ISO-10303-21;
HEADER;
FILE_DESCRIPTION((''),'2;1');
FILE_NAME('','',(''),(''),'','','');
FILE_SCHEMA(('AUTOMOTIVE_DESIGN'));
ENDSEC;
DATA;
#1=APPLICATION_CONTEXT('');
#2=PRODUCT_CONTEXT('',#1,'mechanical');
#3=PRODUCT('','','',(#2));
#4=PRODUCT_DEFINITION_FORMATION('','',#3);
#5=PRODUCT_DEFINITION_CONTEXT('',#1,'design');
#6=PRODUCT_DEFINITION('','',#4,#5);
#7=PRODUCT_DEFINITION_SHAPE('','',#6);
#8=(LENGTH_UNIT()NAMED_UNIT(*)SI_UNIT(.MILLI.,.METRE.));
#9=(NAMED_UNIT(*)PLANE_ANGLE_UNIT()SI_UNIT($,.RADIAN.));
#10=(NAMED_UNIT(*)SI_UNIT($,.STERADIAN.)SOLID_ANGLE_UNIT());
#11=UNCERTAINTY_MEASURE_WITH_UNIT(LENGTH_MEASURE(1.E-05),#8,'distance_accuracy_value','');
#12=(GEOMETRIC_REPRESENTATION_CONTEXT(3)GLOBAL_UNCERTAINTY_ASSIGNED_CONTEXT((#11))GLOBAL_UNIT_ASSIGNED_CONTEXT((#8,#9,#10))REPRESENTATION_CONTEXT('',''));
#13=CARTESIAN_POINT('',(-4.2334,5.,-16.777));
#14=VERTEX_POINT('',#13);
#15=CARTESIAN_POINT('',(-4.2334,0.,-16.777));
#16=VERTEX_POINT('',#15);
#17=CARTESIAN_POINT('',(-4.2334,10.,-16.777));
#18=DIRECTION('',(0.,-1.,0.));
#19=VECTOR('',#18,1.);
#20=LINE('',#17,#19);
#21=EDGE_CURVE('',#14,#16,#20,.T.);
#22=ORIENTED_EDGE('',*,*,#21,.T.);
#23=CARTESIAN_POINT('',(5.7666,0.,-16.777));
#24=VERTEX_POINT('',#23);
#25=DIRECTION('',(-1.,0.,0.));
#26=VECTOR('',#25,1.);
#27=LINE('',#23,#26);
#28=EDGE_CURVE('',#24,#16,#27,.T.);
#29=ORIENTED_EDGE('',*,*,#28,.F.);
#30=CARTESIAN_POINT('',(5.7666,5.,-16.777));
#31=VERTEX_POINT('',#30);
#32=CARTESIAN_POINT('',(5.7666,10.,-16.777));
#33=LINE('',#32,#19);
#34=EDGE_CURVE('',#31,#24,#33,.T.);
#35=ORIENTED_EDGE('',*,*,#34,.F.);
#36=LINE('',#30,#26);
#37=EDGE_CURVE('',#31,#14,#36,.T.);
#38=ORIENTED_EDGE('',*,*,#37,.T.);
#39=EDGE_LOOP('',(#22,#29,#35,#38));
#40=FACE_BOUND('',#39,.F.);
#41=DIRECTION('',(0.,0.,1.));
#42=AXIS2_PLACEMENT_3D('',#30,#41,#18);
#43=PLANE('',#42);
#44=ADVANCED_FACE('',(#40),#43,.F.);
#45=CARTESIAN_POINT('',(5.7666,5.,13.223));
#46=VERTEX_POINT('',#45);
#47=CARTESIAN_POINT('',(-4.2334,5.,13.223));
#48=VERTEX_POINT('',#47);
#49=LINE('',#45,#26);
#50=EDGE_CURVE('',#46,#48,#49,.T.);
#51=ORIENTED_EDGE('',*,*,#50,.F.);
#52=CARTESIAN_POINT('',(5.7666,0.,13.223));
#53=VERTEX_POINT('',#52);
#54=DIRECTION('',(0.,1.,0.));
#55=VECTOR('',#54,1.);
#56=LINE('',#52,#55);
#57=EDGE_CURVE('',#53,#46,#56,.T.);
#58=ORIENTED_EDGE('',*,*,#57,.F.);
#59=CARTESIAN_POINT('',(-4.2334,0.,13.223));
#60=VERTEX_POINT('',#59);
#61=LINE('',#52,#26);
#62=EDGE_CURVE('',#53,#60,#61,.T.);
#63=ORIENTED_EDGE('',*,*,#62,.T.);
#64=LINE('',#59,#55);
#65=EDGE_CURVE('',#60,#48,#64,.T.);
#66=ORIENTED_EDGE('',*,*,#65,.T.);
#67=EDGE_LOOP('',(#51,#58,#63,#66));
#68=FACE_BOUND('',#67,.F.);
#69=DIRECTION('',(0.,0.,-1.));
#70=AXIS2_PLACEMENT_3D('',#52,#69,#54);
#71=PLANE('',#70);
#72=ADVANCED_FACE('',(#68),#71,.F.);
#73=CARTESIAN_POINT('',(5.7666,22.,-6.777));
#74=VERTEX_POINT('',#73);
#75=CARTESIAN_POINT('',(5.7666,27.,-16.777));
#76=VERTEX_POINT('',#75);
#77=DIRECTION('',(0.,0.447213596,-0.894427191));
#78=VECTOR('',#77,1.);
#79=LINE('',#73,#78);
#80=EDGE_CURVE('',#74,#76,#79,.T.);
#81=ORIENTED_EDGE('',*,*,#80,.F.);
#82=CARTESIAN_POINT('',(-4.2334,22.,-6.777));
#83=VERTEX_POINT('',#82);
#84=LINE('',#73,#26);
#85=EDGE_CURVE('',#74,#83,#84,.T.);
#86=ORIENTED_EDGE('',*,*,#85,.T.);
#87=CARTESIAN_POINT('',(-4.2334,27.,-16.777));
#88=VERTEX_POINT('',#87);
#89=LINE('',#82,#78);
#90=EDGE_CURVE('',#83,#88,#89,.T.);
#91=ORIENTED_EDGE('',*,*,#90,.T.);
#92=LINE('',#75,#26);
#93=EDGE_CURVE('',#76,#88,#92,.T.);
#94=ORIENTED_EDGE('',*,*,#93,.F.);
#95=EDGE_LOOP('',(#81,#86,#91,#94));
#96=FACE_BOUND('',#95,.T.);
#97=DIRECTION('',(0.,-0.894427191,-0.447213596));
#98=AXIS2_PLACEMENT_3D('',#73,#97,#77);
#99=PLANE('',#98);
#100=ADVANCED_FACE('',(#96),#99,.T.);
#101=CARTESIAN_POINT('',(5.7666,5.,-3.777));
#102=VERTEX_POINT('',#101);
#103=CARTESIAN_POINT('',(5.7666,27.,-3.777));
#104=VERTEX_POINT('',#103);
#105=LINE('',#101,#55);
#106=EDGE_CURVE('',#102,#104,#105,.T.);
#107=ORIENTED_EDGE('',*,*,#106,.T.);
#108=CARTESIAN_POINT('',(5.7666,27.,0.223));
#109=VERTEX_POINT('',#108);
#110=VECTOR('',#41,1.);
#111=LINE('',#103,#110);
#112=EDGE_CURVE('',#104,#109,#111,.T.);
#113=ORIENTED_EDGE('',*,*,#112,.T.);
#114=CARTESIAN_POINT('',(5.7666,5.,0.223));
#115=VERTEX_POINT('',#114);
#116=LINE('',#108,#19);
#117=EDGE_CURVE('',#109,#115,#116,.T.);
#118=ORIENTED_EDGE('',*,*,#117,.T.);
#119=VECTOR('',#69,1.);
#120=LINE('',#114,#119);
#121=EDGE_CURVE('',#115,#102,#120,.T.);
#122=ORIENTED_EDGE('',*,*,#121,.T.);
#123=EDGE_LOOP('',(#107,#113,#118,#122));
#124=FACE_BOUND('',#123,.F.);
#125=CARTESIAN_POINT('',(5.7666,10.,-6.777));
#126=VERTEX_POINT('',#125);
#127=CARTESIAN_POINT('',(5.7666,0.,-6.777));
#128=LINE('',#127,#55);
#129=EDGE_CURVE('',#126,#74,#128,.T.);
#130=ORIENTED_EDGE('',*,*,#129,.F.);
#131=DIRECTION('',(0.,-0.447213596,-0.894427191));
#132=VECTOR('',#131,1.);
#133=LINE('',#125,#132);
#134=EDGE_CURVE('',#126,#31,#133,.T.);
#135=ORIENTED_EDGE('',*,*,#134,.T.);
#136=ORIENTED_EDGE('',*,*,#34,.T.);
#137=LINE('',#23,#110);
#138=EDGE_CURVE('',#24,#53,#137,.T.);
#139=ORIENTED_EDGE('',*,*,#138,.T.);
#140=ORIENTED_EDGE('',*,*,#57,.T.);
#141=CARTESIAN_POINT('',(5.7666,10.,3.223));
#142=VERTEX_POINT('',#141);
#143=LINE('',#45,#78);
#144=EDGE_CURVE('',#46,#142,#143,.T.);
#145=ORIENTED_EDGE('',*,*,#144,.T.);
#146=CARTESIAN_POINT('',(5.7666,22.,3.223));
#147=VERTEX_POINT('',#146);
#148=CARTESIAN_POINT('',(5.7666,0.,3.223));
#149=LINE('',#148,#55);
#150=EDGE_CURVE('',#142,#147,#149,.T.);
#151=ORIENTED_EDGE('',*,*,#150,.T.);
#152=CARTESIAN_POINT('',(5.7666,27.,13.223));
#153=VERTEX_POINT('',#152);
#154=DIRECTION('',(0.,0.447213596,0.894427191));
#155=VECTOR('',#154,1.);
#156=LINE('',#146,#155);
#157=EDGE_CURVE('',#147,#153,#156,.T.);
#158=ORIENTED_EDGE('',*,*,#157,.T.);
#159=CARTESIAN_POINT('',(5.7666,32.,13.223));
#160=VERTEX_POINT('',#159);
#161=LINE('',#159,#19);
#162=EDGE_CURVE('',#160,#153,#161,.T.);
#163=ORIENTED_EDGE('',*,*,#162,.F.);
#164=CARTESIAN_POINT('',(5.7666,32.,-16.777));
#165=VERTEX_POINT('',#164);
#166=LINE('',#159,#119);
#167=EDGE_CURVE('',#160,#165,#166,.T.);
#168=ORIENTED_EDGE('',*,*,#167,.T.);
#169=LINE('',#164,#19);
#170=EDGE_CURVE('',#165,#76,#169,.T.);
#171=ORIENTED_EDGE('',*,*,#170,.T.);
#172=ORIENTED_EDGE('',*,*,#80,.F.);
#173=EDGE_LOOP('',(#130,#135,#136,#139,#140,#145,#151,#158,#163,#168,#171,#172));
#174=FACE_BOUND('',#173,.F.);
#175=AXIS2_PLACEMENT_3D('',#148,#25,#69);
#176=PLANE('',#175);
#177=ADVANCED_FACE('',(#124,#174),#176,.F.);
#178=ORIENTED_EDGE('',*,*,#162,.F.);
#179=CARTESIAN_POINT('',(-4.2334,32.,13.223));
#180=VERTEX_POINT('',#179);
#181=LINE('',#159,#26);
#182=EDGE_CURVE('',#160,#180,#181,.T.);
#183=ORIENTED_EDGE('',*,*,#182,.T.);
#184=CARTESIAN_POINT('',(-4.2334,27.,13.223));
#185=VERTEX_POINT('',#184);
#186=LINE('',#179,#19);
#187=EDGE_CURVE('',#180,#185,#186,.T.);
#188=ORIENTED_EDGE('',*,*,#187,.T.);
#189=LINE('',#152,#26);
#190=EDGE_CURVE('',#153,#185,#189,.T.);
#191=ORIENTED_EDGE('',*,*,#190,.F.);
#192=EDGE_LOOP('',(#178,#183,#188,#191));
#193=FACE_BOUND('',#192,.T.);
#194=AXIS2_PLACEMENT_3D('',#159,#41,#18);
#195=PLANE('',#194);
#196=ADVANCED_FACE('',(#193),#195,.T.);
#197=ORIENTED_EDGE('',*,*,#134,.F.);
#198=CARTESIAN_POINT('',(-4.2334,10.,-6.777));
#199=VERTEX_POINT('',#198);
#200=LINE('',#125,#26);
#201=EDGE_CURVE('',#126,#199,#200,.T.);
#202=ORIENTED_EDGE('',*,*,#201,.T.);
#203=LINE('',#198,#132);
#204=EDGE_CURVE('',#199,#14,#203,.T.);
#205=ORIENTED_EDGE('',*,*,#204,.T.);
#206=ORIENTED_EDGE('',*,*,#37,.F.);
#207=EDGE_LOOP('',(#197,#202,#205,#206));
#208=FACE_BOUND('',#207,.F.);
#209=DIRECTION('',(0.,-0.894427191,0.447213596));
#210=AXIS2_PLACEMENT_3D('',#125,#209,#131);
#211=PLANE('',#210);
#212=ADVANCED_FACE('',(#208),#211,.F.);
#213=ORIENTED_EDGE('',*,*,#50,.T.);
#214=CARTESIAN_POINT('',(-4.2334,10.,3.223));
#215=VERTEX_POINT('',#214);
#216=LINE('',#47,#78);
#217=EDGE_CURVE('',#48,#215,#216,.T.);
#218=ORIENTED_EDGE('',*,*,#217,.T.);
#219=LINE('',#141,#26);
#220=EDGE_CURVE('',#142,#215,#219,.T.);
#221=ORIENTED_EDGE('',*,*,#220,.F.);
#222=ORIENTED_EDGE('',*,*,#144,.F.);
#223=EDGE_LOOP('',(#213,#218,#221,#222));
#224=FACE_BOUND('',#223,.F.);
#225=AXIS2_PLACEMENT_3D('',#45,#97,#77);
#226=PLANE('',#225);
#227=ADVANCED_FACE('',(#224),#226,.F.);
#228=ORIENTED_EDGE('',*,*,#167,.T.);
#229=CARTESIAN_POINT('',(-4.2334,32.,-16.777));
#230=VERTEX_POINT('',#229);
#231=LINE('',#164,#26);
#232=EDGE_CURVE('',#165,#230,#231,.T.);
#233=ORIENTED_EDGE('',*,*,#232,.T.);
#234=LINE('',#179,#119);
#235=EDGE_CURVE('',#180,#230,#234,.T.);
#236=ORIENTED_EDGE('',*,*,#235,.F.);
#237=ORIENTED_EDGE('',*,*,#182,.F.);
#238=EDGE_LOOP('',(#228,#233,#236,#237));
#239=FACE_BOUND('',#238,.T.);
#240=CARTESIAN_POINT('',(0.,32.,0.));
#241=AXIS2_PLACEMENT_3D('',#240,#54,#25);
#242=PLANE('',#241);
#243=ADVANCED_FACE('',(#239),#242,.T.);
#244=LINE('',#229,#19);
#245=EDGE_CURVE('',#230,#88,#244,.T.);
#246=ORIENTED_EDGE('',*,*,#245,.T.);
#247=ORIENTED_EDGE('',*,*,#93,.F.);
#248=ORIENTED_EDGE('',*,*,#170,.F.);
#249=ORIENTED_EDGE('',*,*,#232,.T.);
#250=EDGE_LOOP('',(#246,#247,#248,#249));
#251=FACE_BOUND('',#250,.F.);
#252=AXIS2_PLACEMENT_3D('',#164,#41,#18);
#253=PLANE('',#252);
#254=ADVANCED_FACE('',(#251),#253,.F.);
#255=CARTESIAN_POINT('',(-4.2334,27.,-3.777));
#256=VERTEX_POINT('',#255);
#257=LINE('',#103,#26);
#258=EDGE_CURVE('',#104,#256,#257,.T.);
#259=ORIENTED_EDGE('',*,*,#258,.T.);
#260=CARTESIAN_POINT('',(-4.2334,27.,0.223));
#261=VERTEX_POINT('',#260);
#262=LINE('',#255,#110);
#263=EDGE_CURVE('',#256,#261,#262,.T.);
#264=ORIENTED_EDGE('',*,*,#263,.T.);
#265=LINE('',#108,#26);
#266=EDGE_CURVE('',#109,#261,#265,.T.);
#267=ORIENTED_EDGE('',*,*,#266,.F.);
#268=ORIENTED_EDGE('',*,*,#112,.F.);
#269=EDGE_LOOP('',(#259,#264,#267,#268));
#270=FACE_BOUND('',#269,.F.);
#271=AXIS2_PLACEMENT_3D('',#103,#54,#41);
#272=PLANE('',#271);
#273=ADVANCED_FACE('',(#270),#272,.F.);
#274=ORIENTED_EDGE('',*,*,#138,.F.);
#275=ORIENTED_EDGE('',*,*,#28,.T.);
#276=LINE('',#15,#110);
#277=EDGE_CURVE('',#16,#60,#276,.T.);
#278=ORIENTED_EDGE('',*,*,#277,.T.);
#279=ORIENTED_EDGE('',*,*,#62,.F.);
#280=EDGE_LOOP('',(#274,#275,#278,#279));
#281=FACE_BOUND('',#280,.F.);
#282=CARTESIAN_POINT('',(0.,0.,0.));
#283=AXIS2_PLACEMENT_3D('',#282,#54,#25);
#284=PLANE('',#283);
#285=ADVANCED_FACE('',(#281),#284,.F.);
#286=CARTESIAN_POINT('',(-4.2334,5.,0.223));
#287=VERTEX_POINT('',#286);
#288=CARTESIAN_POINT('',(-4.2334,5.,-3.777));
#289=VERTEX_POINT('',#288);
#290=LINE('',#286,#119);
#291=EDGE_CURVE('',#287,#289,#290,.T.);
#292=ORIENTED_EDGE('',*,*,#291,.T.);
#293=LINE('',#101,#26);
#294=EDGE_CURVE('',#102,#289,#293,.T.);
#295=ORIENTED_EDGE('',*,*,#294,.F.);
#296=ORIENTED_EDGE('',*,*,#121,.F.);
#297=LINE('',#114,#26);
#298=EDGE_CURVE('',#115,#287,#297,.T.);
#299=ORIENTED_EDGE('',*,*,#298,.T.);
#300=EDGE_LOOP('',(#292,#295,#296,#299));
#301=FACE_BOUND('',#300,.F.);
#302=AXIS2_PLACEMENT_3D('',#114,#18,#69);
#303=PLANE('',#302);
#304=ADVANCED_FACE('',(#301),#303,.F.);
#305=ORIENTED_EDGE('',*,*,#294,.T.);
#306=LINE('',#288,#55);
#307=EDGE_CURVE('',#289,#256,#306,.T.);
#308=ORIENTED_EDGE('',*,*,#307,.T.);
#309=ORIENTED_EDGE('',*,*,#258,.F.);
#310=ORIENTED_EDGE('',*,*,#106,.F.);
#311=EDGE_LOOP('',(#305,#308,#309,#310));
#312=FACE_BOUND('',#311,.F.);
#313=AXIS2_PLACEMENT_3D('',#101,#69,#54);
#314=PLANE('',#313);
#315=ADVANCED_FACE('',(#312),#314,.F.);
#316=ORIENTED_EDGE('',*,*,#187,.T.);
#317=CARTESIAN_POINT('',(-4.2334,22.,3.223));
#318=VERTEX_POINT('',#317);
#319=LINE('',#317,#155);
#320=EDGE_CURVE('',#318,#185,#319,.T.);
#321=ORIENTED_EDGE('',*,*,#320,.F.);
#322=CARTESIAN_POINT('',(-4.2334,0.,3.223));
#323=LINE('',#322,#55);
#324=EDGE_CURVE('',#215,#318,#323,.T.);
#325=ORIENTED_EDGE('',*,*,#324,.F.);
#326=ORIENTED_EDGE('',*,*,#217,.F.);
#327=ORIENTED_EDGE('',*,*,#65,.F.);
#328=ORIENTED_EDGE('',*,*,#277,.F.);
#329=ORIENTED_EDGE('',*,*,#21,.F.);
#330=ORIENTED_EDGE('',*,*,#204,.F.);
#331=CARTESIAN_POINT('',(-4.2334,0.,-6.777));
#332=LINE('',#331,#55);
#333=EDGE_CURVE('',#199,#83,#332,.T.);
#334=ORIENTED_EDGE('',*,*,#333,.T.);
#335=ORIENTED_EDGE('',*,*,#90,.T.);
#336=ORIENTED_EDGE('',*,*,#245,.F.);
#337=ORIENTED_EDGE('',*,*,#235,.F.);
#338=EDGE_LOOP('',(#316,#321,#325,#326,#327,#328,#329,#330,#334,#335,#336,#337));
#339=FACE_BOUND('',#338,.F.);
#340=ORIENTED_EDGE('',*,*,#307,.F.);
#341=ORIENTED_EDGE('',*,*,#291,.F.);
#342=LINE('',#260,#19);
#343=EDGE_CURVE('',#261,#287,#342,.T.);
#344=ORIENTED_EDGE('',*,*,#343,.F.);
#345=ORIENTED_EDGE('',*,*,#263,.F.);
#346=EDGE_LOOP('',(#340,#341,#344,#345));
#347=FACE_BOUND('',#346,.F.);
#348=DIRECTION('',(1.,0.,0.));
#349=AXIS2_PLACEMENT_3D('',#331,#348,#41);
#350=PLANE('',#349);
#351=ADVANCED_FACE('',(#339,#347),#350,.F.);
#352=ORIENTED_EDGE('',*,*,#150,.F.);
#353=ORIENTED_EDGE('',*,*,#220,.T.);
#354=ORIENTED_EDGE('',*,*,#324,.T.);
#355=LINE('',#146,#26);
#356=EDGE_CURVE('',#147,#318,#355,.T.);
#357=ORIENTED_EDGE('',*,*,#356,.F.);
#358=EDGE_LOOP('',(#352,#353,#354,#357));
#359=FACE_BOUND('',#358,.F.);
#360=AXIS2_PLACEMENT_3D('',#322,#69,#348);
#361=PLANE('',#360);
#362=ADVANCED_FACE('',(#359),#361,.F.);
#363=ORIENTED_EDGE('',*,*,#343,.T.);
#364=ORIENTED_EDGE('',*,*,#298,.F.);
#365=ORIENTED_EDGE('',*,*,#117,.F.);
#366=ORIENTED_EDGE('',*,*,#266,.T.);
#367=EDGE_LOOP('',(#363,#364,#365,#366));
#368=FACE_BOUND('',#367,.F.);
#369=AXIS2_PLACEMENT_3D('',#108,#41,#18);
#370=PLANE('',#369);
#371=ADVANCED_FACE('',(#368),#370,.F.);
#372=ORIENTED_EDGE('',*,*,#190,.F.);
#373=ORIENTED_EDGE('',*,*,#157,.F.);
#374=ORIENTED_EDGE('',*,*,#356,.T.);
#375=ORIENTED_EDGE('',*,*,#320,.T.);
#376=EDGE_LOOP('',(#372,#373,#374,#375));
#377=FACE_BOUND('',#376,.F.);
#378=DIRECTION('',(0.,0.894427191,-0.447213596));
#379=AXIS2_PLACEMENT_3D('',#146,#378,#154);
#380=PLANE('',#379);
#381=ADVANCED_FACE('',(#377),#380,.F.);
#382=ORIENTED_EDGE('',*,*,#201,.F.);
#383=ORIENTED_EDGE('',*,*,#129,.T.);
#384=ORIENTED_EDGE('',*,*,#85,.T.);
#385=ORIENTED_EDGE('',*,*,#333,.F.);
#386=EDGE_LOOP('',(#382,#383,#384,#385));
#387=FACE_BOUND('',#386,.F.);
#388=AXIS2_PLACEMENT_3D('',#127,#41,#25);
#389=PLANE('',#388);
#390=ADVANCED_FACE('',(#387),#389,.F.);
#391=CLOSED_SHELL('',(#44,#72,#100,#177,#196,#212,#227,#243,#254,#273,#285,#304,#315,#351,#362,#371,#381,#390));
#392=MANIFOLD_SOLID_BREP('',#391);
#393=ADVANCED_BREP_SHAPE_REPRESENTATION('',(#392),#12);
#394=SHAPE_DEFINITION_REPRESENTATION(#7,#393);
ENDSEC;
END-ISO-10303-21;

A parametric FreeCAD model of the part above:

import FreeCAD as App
import Part
import Sketcher
Q = App.Units.Quantity

doc = App.newDocument("Part")
body = doc.addObject("PartDesign::Body", "Body")

# Sketch on XZ plane
sketch1 = body.newObject("Sketcher::SketchObject", "Sketch")
sketch1.AttachmentSupport = (doc.getObject("XZ_Plane"), [""])
sketch1.MapMode = "FlatFace"
sketch1.addGeometry([
    Part.LineSegment(App.Vector(-4, -7, 0), App.Vector(-4, 3, 0)),
    Part.LineSegment(App.Vector(-4, 3, 0), App.Vector(6, 3, 0)),
    Part.LineSegment(App.Vector(6, 3, 0), App.Vector(6, -7, 0)),
    Part.LineSegment(App.Vector(6, -7, 0), App.Vector(-4, -7, 0)),
], False)
sketch1.addConstraint([
    Sketcher.Constraint("Coincident", 0, 2, 1, 1),
    Sketcher.Constraint("Coincident", 1, 2, 2, 1),
    Sketcher.Constraint("Coincident", 2, 2, 3, 1),
    Sketcher.Constraint("Coincident", 3, 2, 0, 1),
    Sketcher.Constraint("Vertical", 0),
    Sketcher.Constraint("Horizontal", 1),
    Sketcher.Constraint("Vertical", 2),
    Sketcher.Constraint("Horizontal", 3),
    Sketcher.Constraint("Equal", 3, 0),
    Sketcher.Constraint("DistanceX", 1, 1, 1, 2, Q("10 mm")),
    Sketcher.Constraint("DistanceY", -1, 1, 0, 2, Q("3.223 mm")),
    Sketcher.Constraint("DistanceX", 0, 2, -1, 1, Q("4.2334 mm")),
])
pad1 = body.newObject("PartDesign::Pad", "Pad")
pad1.Profile = sketch1
pad1.Length = 32
pad1.Reversed = True

# Sketch on YZ plane
sketch2 = body.newObject("Sketcher::SketchObject", "Sketch001")
sketch2.AttachmentSupport = (doc.getObject("YZ_Plane"), [""])
sketch2.MapMode = "FlatFace"
sketch2.AttachmentOffset = App.Placement(App.Vector(0, 0, 5.7666), App.Rotation())
sketch2.addGeometry([
    Part.LineSegment(App.Vector(0, 13, 0), App.Vector(0, 3, 0)),  # 0
    Part.LineSegment(App.Vector(0, 3, 0), App.Vector(10, 3, 0)),  # 1
    Part.LineSegment(App.Vector(10, 3, 0), App.Vector(5, 13, 0)),  # 2
    Part.LineSegment(App.Vector(5, 13, 0), App.Vector(0, 13, 0)),  # 3
    Part.LineSegment(App.Vector(10, -7, 0), App.Vector(0, -7, 0)),  # 4
    Part.LineSegment(App.Vector(0, -7, 0), App.Vector(0, -17, 0)),  # 5
    Part.LineSegment(App.Vector(0, -17, 0), App.Vector(5, -17, 0)),  # 6
    Part.LineSegment(App.Vector(5, -17, 0), App.Vector(10, -7, 0)),  # 7
], False)
sketch2.addConstraint([
    Sketcher.Constraint("Coincident", 0, 2, 1, 1),
    Sketcher.Constraint("Coincident", 1, 2, 2, 1),
    Sketcher.Constraint("Coincident", 2, 2, 3, 1),
    Sketcher.Constraint("Coincident", 3, 2, 0, 1),
    Sketcher.Constraint("Coincident", 4, 2, 5, 1),
    Sketcher.Constraint("Coincident", 5, 2, 6, 1),
    Sketcher.Constraint("Coincident", 6, 2, 7, 1),
    Sketcher.Constraint("Coincident", 7, 2, 4, 1),
    Sketcher.Constraint("Vertical", 0),
    Sketcher.Constraint("Horizontal", 1),
    Sketcher.Constraint("Horizontal", 3),
    Sketcher.Constraint("Horizontal", 4),
    Sketcher.Constraint("Vertical", 5),
    Sketcher.Constraint("Horizontal", 6),
    Sketcher.Constraint("PointOnObject", 0, 2, -2),
    Sketcher.Constraint("PointOnObject", 4, 2, -2),
    Sketcher.Constraint("Vertical", 2, 2, 6, 2),
    Sketcher.Constraint("Vertical", 1, 2, 7, 2),
    Sketcher.Constraint("Equal", 4, 0),
    Sketcher.Constraint("Equal", 0, 5),
    Sketcher.Constraint("DistanceX", 1, 1, 1, 2, Q("10 mm")),
    Sketcher.Constraint("DistanceY", 4, 2, 0, 2, Q("10 mm")),
    Sketcher.Constraint("DistanceX", 3, 2, 3, 1, Q("5 mm")),
    Sketcher.Constraint("DistanceY", -1, 1, 0, 2, Q("3.223 mm")),
])
pad2 = body.newObject("PartDesign::Pad", "Pad001")
pad2.Profile = sketch2
pad2.Length = 10
pad2.Reversed = True

# Sketch on YZ plane
sketch3 = body.newObject("Sketcher::SketchObject", "Sketch002")
sketch3.AttachmentSupport = (doc.getObject("YZ_Plane"), [""])
sketch3.MapMode = "FlatFace"
sketch3.AttachmentOffset = App.Placement(App.Vector(0, 0, 5.7666), App.Rotation())
sketch3.addGeometry([
    Part.LineSegment(App.Vector(32, -17, 0), App.Vector(32, -7, 0)),  # 0
    Part.LineSegment(App.Vector(32, -7, 0), App.Vector(22, -7, 0)),  # 1
    Part.LineSegment(App.Vector(22, -7, 0), App.Vector(27, -17, 0)),  # 2
    Part.LineSegment(App.Vector(27, -17, 0), App.Vector(32, -17, 0)),  # 3
    Part.LineSegment(App.Vector(22, 3, 0), App.Vector(32, 3, 0)),  # 4
    Part.LineSegment(App.Vector(32, 3, 0), App.Vector(32, 13, 0)),  # 5
    Part.LineSegment(App.Vector(32, 13, 0), App.Vector(27, 13, 0)),  # 6
    Part.LineSegment(App.Vector(27, 13, 0), App.Vector(22, 3, 0)),  # 7
], False)
sketch3.addConstraint([
    Sketcher.Constraint("Coincident", 0, 2, 1, 1),
    Sketcher.Constraint("Coincident", 1, 2, 2, 1),
    Sketcher.Constraint("Coincident", 2, 2, 3, 1),
    Sketcher.Constraint("Coincident", 3, 2, 0, 1),
    Sketcher.Constraint("Coincident", 4, 2, 5, 1),
    Sketcher.Constraint("Coincident", 5, 2, 6, 1),
    Sketcher.Constraint("Coincident", 6, 2, 7, 1),
    Sketcher.Constraint("Coincident", 7, 2, 4, 1),
    Sketcher.Constraint("Vertical", 0),
    Sketcher.Constraint("Horizontal", 1),
    Sketcher.Constraint("Horizontal", 3),
    Sketcher.Constraint("Horizontal", 4),
    Sketcher.Constraint("Vertical", 5),
    Sketcher.Constraint("Horizontal", 6),
    Sketcher.Constraint("Vertical", 3, 2, 4, 2),
    Sketcher.Constraint("Vertical", 2, 2, 6, 2),
    Sketcher.Constraint("Vertical", 1, 2, 7, 2),
    Sketcher.Constraint("Equal", 4, 0),
    Sketcher.Constraint("Equal", 0, 5),
    Sketcher.Constraint("DistanceX", 1, 2, 1, 1, Q("10 mm")),
    Sketcher.Constraint("DistanceY", 0, 2, 4, 2, Q("10 mm")),
    Sketcher.Constraint("DistanceX", 3, 1, 3, 2, Q("5 mm")),
    Sketcher.Constraint("DistanceX", -1, 1, 0, 2, Q("32 mm")),
    Sketcher.Constraint("DistanceY", 0, 2, -1, 1, Q("6.777 mm")),
])
pad3 = body.newObject("PartDesign::Pad", "Pad002")
pad3.Profile = sketch3
pad3.Length = 10
pad3.Reversed = True

# Sketch on YZ plane
sketch4 = body.newObject("Sketcher::SketchObject", "Sketch003")
sketch4.AttachmentSupport = (doc.getObject("YZ_Plane"), [""])
sketch4.MapMode = "FlatFace"
sketch4.AttachmentOffset = App.Placement(App.Vector(0, 0, 5.7666), App.Rotation())
sketch4.addGeometry([
    Part.LineSegment(App.Vector(5, -3.8, 0), App.Vector(27, -3.8, 0)),
    Part.LineSegment(App.Vector(27, -3.8, 0), App.Vector(27, 0.2, 0)),
    Part.LineSegment(App.Vector(27, 0.2, 0), App.Vector(5, 0.2, 0)),
    Part.LineSegment(App.Vector(5, 0.2, 0), App.Vector(5, -3.8, 0)),
], False)
sketch4.addConstraint([
    Sketcher.Constraint("Coincident", 0, 2, 1, 1),
    Sketcher.Constraint("Coincident", 1, 2, 2, 1),
    Sketcher.Constraint("Coincident", 2, 2, 3, 1),
    Sketcher.Constraint("Coincident", 3, 2, 0, 1),
    Sketcher.Constraint("Horizontal", 0),
    Sketcher.Constraint("Vertical", 1),
    Sketcher.Constraint("Horizontal", 2),
    Sketcher.Constraint("Vertical", 3),
    Sketcher.Constraint("DistanceX", -1, 1, 2, 2, Q("5 mm")),
    Sketcher.Constraint("DistanceX", 0, 1, 0, 2, Q("22 mm")),
    Sketcher.Constraint("DistanceY", 1, 1, 1, 2, Q("4 mm")),
    Sketcher.Constraint("DistanceY", 0, 2, -1, 1, Q("3.777 mm")),
])
pocket1 = body.newObject("PartDesign::Pocket", "Pocket")
pocket1.Profile = sketch4
pocket1.Length = 10

doc.recompute()
